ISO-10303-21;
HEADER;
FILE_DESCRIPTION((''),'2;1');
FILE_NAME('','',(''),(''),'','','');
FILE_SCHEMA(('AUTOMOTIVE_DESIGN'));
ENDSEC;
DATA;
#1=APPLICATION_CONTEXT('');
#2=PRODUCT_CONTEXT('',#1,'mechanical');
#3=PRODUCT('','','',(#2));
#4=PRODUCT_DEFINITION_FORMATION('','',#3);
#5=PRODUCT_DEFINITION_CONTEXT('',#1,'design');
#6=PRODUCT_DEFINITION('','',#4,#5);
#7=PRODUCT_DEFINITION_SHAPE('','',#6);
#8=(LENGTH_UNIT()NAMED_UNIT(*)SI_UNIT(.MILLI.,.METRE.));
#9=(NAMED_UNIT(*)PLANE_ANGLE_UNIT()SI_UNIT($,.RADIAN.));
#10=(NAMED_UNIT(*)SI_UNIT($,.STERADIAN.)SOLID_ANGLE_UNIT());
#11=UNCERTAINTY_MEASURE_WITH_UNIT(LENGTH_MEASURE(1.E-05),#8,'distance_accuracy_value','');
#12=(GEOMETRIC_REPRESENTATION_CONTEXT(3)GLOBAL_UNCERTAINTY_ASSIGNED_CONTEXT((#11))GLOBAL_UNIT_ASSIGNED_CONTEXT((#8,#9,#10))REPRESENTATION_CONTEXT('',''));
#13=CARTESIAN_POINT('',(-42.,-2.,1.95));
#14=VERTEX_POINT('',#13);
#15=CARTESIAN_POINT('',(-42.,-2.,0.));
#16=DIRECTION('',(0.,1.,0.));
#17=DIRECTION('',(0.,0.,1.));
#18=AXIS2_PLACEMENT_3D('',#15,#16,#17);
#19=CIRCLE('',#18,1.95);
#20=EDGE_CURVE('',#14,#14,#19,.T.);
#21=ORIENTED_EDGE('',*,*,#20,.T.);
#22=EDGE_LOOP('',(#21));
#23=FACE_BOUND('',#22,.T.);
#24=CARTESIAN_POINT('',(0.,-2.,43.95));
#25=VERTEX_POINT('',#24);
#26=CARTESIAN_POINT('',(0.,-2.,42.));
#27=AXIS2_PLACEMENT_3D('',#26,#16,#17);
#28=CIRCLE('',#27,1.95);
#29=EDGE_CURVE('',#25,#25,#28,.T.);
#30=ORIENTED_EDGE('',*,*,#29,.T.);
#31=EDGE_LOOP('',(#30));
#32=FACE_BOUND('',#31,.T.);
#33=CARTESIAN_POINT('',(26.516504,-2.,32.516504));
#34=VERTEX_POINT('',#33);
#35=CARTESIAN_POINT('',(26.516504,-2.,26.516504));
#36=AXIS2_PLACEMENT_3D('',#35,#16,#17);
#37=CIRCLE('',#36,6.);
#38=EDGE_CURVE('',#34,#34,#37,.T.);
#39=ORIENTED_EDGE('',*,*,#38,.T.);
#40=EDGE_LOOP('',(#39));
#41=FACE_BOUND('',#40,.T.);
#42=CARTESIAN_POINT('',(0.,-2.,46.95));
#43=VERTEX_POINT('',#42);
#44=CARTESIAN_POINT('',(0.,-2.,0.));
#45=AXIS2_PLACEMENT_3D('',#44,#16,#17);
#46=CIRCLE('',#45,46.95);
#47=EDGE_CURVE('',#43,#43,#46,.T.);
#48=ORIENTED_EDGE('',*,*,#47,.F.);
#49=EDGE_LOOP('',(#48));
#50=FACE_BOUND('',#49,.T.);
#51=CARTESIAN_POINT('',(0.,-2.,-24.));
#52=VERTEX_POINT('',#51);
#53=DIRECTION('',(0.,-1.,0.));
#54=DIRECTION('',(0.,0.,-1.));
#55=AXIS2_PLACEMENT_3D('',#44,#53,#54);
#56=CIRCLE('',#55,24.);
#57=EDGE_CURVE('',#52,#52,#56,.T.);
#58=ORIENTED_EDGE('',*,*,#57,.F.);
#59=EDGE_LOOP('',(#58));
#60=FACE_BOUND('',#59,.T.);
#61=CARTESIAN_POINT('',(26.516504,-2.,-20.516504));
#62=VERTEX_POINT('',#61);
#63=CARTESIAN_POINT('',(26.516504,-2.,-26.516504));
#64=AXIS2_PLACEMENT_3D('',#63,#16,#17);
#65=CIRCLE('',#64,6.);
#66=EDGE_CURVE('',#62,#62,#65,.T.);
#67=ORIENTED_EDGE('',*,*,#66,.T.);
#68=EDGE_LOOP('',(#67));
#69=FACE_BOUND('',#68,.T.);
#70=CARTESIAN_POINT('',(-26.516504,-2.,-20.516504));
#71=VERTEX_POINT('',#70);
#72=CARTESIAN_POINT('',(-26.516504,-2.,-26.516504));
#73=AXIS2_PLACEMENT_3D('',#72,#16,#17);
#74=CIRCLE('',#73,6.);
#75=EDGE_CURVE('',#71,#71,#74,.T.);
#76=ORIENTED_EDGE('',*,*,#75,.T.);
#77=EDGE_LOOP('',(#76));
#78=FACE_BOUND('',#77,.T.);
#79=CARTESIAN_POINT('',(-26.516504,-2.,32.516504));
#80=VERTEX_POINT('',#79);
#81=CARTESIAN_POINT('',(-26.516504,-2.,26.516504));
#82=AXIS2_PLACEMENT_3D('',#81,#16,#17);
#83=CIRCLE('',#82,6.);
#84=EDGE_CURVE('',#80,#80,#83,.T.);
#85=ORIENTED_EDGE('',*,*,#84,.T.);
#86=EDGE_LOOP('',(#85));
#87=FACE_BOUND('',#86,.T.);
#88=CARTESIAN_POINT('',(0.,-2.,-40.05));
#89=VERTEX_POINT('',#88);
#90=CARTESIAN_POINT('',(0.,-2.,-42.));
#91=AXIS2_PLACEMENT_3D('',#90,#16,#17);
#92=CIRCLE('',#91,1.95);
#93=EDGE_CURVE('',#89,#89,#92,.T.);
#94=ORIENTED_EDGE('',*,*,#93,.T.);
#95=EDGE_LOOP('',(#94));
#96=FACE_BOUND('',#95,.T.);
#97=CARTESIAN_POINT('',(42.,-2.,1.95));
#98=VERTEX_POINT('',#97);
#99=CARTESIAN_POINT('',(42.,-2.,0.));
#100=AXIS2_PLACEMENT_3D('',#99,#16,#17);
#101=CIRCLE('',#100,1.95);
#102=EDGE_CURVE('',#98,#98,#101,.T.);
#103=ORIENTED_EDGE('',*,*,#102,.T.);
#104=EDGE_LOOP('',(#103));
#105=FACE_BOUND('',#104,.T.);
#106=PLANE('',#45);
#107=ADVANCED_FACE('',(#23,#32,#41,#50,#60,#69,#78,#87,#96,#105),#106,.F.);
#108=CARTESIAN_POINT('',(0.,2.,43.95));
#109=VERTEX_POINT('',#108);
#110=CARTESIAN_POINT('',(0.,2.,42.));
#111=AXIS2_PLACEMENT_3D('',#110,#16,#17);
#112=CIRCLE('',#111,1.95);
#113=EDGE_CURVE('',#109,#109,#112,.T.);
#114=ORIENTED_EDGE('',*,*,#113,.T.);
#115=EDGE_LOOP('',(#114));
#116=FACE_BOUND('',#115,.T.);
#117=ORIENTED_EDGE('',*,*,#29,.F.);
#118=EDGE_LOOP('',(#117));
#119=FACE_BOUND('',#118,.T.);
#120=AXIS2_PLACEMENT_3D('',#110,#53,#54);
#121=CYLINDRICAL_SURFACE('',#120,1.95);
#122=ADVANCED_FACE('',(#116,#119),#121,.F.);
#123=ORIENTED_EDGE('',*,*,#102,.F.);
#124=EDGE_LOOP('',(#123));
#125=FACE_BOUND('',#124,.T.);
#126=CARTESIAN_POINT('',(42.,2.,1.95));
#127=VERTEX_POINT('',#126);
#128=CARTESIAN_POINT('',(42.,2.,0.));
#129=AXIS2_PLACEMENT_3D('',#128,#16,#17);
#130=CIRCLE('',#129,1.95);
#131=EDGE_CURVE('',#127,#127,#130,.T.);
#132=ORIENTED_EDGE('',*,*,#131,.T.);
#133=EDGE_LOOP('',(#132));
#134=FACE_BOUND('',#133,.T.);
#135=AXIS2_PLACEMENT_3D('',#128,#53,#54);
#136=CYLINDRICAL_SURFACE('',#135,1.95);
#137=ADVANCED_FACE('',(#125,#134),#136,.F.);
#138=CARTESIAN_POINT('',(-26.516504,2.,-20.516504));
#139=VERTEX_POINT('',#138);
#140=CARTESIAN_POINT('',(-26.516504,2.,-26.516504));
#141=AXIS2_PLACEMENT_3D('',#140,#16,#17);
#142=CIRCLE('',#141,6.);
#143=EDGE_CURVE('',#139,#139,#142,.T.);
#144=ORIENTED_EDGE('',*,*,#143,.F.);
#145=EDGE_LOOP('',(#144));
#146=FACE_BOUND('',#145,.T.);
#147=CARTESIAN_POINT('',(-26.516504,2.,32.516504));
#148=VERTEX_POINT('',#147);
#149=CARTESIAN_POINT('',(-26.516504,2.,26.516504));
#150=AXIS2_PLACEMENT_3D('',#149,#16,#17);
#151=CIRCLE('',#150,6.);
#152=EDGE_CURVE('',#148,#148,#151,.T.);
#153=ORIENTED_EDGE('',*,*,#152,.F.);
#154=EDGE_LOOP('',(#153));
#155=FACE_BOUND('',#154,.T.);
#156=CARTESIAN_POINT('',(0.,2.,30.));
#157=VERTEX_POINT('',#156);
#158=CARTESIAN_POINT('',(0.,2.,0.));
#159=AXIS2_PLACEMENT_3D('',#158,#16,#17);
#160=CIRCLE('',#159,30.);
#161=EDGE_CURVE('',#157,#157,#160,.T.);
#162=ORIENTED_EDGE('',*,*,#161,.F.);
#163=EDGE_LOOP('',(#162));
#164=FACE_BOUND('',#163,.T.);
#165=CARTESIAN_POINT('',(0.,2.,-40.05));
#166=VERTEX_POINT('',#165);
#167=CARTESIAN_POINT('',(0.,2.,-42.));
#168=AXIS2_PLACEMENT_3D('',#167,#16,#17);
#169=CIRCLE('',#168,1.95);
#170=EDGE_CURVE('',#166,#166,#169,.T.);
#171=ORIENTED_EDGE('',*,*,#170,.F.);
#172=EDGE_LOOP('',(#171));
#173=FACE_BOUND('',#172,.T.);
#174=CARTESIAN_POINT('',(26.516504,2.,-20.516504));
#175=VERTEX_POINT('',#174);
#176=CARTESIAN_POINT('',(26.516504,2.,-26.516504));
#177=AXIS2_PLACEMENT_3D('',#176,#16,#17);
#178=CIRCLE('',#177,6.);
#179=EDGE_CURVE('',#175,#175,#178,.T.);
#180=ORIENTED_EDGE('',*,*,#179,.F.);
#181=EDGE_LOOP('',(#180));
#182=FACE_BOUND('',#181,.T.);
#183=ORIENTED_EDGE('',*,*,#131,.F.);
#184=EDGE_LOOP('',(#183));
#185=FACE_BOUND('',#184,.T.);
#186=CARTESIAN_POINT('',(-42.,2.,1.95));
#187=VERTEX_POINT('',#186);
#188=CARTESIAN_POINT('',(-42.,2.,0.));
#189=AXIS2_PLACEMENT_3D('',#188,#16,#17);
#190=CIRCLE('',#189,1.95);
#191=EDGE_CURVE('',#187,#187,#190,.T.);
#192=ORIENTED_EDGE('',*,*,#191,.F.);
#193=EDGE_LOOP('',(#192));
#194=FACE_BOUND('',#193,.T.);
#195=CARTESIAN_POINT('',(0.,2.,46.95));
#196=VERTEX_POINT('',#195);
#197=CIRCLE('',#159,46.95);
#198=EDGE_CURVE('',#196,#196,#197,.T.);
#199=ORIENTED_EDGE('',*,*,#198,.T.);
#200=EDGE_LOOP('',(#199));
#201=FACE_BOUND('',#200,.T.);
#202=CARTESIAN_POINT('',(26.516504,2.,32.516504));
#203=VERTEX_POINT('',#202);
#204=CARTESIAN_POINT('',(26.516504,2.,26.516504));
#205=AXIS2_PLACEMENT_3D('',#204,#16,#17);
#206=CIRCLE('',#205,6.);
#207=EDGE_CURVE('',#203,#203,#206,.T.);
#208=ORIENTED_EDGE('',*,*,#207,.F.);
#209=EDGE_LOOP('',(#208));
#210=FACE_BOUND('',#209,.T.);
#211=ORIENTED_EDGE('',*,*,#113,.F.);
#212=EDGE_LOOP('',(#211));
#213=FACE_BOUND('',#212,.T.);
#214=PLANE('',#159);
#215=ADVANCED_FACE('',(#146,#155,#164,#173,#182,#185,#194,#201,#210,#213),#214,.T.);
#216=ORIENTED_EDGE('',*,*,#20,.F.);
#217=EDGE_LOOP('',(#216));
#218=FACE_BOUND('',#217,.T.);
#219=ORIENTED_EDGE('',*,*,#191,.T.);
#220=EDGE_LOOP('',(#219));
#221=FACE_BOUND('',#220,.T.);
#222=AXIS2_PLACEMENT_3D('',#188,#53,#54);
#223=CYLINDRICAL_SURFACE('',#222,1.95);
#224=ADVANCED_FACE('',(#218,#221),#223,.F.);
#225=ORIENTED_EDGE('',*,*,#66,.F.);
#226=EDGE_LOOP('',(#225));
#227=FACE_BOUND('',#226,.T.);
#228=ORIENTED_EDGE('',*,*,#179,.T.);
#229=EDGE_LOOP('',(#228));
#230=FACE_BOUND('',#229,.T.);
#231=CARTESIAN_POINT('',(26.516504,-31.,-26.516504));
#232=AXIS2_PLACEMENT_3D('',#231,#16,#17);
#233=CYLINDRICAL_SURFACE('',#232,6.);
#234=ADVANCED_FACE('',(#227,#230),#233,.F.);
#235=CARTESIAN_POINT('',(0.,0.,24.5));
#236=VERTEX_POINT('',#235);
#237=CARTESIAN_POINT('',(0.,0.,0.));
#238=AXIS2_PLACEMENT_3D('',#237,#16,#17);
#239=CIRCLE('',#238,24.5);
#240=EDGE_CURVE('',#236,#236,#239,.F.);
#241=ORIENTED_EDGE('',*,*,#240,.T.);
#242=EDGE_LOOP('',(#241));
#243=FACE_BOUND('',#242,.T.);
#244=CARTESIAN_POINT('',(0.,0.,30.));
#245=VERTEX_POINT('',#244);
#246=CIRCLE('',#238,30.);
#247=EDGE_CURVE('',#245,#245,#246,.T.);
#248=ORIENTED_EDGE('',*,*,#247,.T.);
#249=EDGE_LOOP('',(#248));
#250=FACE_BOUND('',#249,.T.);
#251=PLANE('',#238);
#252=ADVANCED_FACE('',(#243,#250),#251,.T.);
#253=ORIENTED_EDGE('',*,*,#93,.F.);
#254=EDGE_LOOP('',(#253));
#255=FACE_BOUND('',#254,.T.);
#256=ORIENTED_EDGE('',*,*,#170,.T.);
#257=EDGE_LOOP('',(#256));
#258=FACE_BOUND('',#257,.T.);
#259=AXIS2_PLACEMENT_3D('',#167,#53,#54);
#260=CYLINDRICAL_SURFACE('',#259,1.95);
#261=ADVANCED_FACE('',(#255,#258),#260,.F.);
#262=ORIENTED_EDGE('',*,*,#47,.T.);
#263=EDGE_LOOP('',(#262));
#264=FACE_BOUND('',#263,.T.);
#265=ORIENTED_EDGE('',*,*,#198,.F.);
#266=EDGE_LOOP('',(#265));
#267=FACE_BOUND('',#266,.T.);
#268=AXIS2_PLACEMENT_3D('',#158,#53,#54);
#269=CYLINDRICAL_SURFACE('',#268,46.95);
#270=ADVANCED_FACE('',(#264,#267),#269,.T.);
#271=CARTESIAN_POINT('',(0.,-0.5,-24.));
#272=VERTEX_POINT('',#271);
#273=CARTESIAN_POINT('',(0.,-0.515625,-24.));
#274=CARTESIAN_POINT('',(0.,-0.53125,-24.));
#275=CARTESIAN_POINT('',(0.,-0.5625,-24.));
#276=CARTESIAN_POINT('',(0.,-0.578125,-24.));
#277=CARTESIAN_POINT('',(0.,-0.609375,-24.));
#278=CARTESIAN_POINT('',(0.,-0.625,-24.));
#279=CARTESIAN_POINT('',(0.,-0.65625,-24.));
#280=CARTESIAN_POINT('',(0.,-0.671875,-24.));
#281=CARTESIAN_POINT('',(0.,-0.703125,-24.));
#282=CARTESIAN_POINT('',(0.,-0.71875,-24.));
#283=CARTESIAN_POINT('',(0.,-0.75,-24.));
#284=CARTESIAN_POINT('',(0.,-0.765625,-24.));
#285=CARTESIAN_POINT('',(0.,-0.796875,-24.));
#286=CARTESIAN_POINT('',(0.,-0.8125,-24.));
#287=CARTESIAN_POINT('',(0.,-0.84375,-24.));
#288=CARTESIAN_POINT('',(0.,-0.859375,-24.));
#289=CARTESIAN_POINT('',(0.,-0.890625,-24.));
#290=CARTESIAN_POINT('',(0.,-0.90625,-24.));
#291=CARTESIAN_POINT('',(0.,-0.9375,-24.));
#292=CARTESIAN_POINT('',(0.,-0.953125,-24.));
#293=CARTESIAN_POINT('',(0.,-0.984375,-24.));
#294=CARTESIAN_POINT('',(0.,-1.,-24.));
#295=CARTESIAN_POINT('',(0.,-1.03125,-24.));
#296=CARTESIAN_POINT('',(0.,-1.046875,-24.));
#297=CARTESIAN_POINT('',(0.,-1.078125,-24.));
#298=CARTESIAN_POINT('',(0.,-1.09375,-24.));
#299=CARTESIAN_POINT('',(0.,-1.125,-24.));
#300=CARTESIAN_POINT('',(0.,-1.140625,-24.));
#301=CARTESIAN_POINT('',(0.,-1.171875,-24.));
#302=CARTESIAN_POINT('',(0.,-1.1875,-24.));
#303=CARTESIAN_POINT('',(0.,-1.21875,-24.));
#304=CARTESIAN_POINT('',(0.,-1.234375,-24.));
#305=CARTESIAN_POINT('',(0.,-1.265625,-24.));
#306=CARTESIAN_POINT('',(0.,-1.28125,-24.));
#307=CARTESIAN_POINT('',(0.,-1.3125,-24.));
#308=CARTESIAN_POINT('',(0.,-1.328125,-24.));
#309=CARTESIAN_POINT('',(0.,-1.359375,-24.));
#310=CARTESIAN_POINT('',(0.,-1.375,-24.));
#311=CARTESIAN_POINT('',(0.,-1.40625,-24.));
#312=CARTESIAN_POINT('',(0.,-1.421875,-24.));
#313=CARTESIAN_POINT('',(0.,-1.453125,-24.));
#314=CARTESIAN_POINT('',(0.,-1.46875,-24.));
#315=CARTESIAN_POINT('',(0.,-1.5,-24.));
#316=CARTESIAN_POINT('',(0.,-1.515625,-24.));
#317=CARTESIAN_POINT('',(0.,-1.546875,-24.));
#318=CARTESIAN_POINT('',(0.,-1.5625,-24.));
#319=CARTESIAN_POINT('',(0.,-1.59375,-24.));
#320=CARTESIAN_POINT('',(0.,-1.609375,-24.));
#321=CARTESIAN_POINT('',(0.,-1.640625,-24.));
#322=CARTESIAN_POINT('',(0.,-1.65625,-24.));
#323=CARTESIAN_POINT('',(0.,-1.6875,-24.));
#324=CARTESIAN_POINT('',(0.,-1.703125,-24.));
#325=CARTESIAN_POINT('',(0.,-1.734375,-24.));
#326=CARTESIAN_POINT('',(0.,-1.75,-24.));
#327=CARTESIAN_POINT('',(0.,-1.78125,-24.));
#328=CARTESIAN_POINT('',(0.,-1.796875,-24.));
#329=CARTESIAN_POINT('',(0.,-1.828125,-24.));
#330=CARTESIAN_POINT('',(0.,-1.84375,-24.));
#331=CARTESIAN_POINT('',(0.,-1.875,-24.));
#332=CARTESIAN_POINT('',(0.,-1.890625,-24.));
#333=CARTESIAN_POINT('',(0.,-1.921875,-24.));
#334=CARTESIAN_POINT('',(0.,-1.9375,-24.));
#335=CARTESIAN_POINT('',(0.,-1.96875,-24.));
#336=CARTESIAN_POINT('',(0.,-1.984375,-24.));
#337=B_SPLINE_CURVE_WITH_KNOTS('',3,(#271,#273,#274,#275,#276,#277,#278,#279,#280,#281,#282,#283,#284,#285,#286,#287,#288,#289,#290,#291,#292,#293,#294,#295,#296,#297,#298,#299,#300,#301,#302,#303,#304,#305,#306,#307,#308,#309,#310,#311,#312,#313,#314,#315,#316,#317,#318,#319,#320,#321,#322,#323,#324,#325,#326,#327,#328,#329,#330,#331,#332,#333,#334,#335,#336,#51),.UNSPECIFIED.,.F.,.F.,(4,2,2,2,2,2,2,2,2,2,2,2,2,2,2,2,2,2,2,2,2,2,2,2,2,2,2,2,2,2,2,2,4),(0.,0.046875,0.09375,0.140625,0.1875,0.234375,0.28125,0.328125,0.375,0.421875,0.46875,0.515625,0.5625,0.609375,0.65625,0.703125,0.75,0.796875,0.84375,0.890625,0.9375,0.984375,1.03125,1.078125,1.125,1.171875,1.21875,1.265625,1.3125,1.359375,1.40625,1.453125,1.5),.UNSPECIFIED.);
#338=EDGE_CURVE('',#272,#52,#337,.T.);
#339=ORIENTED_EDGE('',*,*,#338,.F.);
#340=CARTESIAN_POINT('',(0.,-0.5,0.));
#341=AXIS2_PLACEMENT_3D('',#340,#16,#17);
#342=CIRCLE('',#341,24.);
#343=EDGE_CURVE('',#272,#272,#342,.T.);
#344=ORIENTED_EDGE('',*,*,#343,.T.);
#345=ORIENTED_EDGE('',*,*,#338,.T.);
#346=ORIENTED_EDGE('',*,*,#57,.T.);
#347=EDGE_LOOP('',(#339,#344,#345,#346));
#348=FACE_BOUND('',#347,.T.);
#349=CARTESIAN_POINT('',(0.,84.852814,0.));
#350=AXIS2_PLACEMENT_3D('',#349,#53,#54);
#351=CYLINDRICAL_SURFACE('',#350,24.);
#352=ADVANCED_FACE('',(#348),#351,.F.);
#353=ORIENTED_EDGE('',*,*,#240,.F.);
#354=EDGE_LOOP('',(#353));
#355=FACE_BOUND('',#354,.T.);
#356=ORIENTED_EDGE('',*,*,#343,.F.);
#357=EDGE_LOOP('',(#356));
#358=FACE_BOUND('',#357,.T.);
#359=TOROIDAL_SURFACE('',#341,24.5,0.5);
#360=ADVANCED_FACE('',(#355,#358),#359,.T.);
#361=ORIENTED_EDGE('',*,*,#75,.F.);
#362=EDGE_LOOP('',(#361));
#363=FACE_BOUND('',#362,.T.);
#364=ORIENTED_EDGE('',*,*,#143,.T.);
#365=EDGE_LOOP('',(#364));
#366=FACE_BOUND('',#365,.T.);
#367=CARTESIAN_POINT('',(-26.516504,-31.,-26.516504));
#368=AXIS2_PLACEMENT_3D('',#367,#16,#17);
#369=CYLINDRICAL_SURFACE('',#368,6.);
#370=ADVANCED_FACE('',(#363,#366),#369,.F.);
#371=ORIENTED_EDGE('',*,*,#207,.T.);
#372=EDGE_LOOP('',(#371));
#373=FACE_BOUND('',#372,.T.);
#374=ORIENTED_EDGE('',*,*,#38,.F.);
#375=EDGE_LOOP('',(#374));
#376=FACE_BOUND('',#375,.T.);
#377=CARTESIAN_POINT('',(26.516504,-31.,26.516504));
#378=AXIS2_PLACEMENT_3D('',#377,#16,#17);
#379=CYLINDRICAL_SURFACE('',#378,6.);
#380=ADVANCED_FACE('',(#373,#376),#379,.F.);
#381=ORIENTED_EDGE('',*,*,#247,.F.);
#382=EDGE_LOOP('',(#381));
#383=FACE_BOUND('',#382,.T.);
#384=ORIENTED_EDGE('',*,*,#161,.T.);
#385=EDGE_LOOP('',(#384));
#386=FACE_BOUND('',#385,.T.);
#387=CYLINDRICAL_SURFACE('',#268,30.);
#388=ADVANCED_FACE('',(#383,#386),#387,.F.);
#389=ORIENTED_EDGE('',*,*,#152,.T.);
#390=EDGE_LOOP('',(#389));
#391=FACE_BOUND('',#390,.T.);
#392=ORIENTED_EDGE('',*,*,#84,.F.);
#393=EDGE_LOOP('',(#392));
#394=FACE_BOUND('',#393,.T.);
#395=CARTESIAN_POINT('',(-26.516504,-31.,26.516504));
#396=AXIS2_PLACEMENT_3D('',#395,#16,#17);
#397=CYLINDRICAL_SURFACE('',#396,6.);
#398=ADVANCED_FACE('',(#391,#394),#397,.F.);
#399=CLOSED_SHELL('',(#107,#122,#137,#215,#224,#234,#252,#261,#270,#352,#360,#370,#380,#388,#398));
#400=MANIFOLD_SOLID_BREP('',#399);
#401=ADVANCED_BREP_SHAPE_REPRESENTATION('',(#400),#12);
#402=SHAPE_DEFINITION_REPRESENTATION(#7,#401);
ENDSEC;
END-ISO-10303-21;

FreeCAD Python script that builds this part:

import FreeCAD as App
import Part
import Sketcher
from FreeCAD import Vector


def edges_at(feature, points):
    """Names of the edges that pass closest to the given points."""
    edges = feature.Shape.Edges
    near = lambda p: min(range(len(edges)), key=lambda i: edges[i].distToShape(Part.Vertex(*p))[0])
    return sorted({f"Edge{near(p) + 1}" for p in points})

doc = App.newDocument("Part")
body = doc.addObject("PartDesign::Body", "Body")

sketch1 = doc.addObject("Sketcher::SketchObject", "Sketch")
body.addObject(sketch1)
sketch1.AttachmentSupport = (doc.XZ_Plane, [""])
sketch1.MapMode = "FlatFace"
sketch1.addGeometry([
    Part.Circle(Vector(0, 0, 0), Vector(0, 0, 1), 46.95),
    Part.Circle(Vector(0, -42, 0), Vector(0, 0, 1), 1.95),
    Part.Circle(Vector(-42, 0, 0), Vector(0, 0, 1), 1.95),
    Part.Circle(Vector(42, 0, 0), Vector(0, 0, 1), 1.95),
    Part.Circle(Vector(0, 0, 0), Vector(0, 0, 1), 30),
    Part.Circle(Vector(0, 42, 0), Vector(0, 0, 1), 1.95),
], False)
sketch1.addConstraint([
    Sketcher.Constraint("Coincident", 0, 3, -1, 1),
    Sketcher.Constraint("Coincident", 4, 3, -1, 1),
    Sketcher.Constraint("Equal", 1, 2),
    Sketcher.Constraint("Equal", 2, 3),
    Sketcher.Constraint("Equal", 3, 5),
    Sketcher.Constraint("Symmetric", 2, 3, 3, 3, -1, 1),
    Sketcher.Constraint("Symmetric", 1, 3, 5, 3, -1, 1),
    Sketcher.Constraint("PointOnObject", 1, 3, -2),
    Sketcher.Constraint("PointOnObject", 2, 3, -1),
    Sketcher.Constraint("Diameter", 4, 60.0),
    Sketcher.Constraint("Diameter", 0, 93.9),
    Sketcher.Constraint("Diameter", 1, 3.9),
    Sketcher.Constraint("DistanceY", 1, 3, -1, 1, 42.0),
    Sketcher.Constraint("DistanceX", 2, 3, -1, 1, 42.0),
])
pad1 = doc.addObject("PartDesign::Pad", "Pad")
body.addObject(pad1)
pad1.Profile = sketch1
pad1.Length = 4
pad1.Midplane = True

sketch2 = doc.addObject("Sketcher::SketchObject", "Sketch001")
body.addObject(sketch2)
sketch2.AttachmentSupport = (doc.XZ_Plane, [""])
sketch2.MapMode = "FlatFace"
sketch2.AttachmentOffset = App.Placement(Vector(0, 0, 2), App.Rotation())
sketch2.addGeometry([
    Part.Circle(Vector(0, 0, 0), Vector(0, 0, 1), 30),
    Part.Circle(Vector(0, 0, 0), Vector(0, 0, 1), 24),
], False)
sketch2.addConstraint([
    Sketcher.Constraint("Coincident", 0, 3, -1, 1),
    Sketcher.Constraint("Coincident", 1, 3, -1, 1),
    Sketcher.Constraint("Diameter", 0, 60.0),
    Sketcher.Constraint("Diameter", 1, 48.0),
])
pad2 = doc.addObject("PartDesign::Pad", "Pad001")
body.addObject(pad2)
pad2.Profile = sketch2
pad2.Length = 2
pad2.Reversed = True

sketch3 = doc.addObject("Sketcher::SketchObject", "Sketch002")
body.addObject(sketch3)
sketch3.AttachmentSupport = (doc.XZ_Plane, [""])
sketch3.MapMode = "FlatFace"
sketch3.AttachmentOffset = App.Placement(Vector(0, 0, 31), App.Rotation())
sketch3.addGeometry([
    Part.Circle(Vector(-42, 0, 0), Vector(0, 0, 1), 1.95),
    Part.Circle(Vector(-26.516504, -26.516504, 0), Vector(0, 0, 1), 6),
    Part.Circle(Vector(26.516504, -26.516504, 0), Vector(0, 0, 1), 6),
    Part.Circle(Vector(26.516504, 26.516504, 0), Vector(0, 0, 1), 6),
    Part.Circle(Vector(-26.516504, 26.516504, 0), Vector(0, 0, 1), 6),
], False)
sketch3.addConstraint([
    Sketcher.Constraint("Equal", 1, 2),
    Sketcher.Constraint("Equal", 2, 3),
    Sketcher.Constraint("Equal", 3, 4),
    Sketcher.Constraint("Symmetric", 1, 3, 3, 3, -1, 1),
    Sketcher.Constraint("Symmetric", 2, 3, 4, 3, -1, 1),
    Sketcher.Constraint("Symmetric", 1, 3, 2, 3, -2),
    Sketcher.Constraint("PointOnObject", 0, 3, -1),
    Sketcher.Constraint("Diameter", 1, 12.0),
    Sketcher.Constraint("Diameter", 0, 3.9),
    Sketcher.Constraint("DistanceX", 0, 3, -1, 1, 42.0),
    Sketcher.Constraint("DistanceX", 1, 3, 2, 3, 53.033009),
    Sketcher.Constraint("DistanceY", 2, 3, 3, 3, 53.033009),
])
pocket1 = doc.addObject("PartDesign::Pocket", "Pocket")
body.addObject(pocket1)
pocket1.Profile = sketch3
pocket1.Length = 33
doc.recompute()

fillet = doc.addObject("PartDesign::Fillet", "Fillet")
body.addObject(fillet)
fillet.Base = (pocket1, edges_at(pocket1, [(0, 0, 24)]))
fillet.Radius = 0.5

doc.recompute()
